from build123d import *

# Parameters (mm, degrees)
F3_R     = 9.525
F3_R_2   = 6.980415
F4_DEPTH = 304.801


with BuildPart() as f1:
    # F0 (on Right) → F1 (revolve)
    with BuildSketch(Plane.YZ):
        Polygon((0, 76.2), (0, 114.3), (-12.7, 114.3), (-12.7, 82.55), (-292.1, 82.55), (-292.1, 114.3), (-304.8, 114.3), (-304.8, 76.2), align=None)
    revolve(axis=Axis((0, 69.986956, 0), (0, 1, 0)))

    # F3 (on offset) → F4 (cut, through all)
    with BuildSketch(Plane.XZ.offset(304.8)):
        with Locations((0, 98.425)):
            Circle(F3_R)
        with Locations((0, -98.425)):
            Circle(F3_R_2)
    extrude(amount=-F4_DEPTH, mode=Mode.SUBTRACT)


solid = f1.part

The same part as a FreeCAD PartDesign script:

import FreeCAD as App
import Part
import Sketcher
from FreeCAD import Vector
Q = App.Units.Quantity

doc = App.newDocument("Part")
params = doc.addObject("Spreadsheet::Sheet", "Params")
for row, (alias, value) in enumerate([
    ("sketch1_width", "11 in"),
    ("sketch1_width2", "12 in"),
    ("sketch1_height", "1.5 in"),
    ("sketch1_height2", "1.25 in"),
    ("revolution_angle", "360 deg"),
    ("sketch2_diameter", "0.75 in"),
], start=1):
    params.set(f"A{row}", alias)
    params.set(f"B{row}", "=" + value)
    params.setAlias(f"B{row}", alias)

body = doc.addObject("PartDesign::Body", "Body")

# Sketch on YZ plane
sketch1 = body.newObject("Sketcher::SketchObject", "Sketch")
sketch1.AttachmentSupport = (doc.getObject("YZ_Plane"), [""])
sketch1.MapMode = "FlatFace"
sketch1.addGeometry(Part.LineSegment(Vector(0, 76, 0), Vector(0, 114, 0)), False)
sketch1.addGeometry(Part.LineSegment(Vector(0, 114, 0), Vector(-13, 114, 0)), False)
sketch1.addGeometry(Part.LineSegment(Vector(-13, 114, 0), Vector(-13, 83, 0)), False)
sketch1.addGeometry(Part.LineSegment(Vector(-13, 83, 0), Vector(-292, 83, 0)), False)
sketch1.addGeometry(Part.LineSegment(Vector(-292, 83, 0), Vector(-292, 114, 0)), False)
sketch1.addGeometry(Part.LineSegment(Vector(-292, 114, 0), Vector(-305, 114, 0)), False)
sketch1.addGeometry(Part.LineSegment(Vector(-305, 114, 0), Vector(-305, 76, 0)), False)
sketch1.addGeometry(Part.LineSegment(Vector(-305, 76, 0), Vector(0, 76, 0)), False)
sketch1.addConstraint(Sketcher.Constraint("Coincident", 0, 2, 1, 1))
sketch1.addConstraint(Sketcher.Constraint("Coincident", 1, 2, 2, 1))
sketch1.addConstraint(Sketcher.Constraint("Coincident", 2, 2, 3, 1))
sketch1.addConstraint(Sketcher.Constraint("Coincident", 3, 2, 4, 1))
sketch1.addConstraint(Sketcher.Constraint("Coincident", 4, 2, 5, 1))
sketch1.addConstraint(Sketcher.Constraint("Coincident", 5, 2, 6, 1))
sketch1.addConstraint(Sketcher.Constraint("Coincident", 6, 2, 7, 1))
sketch1.addConstraint(Sketcher.Constraint("Coincident", 7, 2, 0, 1))
sketch1.addConstraint(Sketcher.Constraint("Vertical", 0))
sketch1.addConstraint(Sketcher.Constraint("Horizontal", 1))
sketch1.addConstraint(Sketcher.Constraint("Vertical", 2))
sketch1.addConstraint(Sketcher.Constraint("Horizontal", 3))
sketch1.addConstraint(Sketcher.Constraint("Vertical", 4))
sketch1.addConstraint(Sketcher.Constraint("Horizontal", 5))
sketch1.addConstraint(Sketcher.Constraint("Vertical", 6))
sketch1.addConstraint(Sketcher.Constraint("Horizontal", 7))
sketch1.addConstraint(Sketcher.Constraint("PointOnObject", 0, 2, -2))
sketch1.addConstraint(Sketcher.Constraint("Horizontal", 1, 2, 4, 2))
sketch1.addConstraint(Sketcher.Constraint("Equal", 1, 5))
sketch1.addConstraint(Sketcher.Constraint("DistanceX", 3, 2, 3, 1, Q("11 in")))
sketch1.addConstraint(Sketcher.Constraint("DistanceX", 7, 1, 7, 2, Q("12 in")))
sketch1.addConstraint(Sketcher.Constraint("DistanceY", 0, 1, 0, 2, Q("1.5 in")))
sketch1.addConstraint(Sketcher.Constraint("DistanceY", -1, 1, 6, 2, Q("3 in")))
sketch1.addConstraint(Sketcher.Constraint("DistanceY", 2, 2, 2, 1, Q("1.25 in")))
sketch1.setExpression("Constraints[19]", "Params.sketch1_width")
sketch1.setExpression("Constraints[20]", "Params.sketch1_width2")
sketch1.setExpression("Constraints[21]", "Params.sketch1_height")
sketch1.setExpression("Constraints[23]", "Params.sketch1_height2")
revolution = body.newObject("PartDesign::Revolution", "Revolution")
revolution.Profile = sketch1
revolution.ReferenceAxis = (sketch1, ["H_Axis"])
revolution.setExpression("Angle", "Params.revolution_angle")

# Sketch on XZ plane
sketch2 = body.newObject("Sketcher::SketchObject", "Sketch001")
sketch2.AttachmentSupport = (doc.getObject("XZ_Plane"), [""])
sketch2.MapMode = "FlatFace"
sketch2.AttachmentOffset = App.Placement(Vector(0, 0, 12 * 25.4), App.Rotation())
sketch2.addGeometry(Part.Circle(Vector(0, 98, 0), Vector(0, 0, 1), 10), False)
sketch2.addGeometry(Part.Circle(Vector(0, -98, 0), Vector(0, 0, 1), 7), False)
sketch2.addConstraint(Sketcher.Constraint("Symmetric", 0, 3, 1, 3, -1, 1))
sketch2.addConstraint(Sketcher.Constraint("PointOnObject", 0, 3, -2))
sketch2.addConstraint(Sketcher.Constraint("Diameter", 0, Q("0.75 in")))
sketch2.addConstraint(Sketcher.Constraint("DistanceY", 1, 3, 0, 3, Q("7.75 in")))
sketch2.addConstraint(Sketcher.Constraint("Diameter", 1, Q("13.96083 mm")))
sketch2.setExpression("Constraints[2]", "Params.sketch2_diameter")
pocket1 = body.newObject("PartDesign::Pocket", "Pocket")
pocket1.Profile = sketch2
pocket1.Type = "ThroughAll"

doc.recompute()
